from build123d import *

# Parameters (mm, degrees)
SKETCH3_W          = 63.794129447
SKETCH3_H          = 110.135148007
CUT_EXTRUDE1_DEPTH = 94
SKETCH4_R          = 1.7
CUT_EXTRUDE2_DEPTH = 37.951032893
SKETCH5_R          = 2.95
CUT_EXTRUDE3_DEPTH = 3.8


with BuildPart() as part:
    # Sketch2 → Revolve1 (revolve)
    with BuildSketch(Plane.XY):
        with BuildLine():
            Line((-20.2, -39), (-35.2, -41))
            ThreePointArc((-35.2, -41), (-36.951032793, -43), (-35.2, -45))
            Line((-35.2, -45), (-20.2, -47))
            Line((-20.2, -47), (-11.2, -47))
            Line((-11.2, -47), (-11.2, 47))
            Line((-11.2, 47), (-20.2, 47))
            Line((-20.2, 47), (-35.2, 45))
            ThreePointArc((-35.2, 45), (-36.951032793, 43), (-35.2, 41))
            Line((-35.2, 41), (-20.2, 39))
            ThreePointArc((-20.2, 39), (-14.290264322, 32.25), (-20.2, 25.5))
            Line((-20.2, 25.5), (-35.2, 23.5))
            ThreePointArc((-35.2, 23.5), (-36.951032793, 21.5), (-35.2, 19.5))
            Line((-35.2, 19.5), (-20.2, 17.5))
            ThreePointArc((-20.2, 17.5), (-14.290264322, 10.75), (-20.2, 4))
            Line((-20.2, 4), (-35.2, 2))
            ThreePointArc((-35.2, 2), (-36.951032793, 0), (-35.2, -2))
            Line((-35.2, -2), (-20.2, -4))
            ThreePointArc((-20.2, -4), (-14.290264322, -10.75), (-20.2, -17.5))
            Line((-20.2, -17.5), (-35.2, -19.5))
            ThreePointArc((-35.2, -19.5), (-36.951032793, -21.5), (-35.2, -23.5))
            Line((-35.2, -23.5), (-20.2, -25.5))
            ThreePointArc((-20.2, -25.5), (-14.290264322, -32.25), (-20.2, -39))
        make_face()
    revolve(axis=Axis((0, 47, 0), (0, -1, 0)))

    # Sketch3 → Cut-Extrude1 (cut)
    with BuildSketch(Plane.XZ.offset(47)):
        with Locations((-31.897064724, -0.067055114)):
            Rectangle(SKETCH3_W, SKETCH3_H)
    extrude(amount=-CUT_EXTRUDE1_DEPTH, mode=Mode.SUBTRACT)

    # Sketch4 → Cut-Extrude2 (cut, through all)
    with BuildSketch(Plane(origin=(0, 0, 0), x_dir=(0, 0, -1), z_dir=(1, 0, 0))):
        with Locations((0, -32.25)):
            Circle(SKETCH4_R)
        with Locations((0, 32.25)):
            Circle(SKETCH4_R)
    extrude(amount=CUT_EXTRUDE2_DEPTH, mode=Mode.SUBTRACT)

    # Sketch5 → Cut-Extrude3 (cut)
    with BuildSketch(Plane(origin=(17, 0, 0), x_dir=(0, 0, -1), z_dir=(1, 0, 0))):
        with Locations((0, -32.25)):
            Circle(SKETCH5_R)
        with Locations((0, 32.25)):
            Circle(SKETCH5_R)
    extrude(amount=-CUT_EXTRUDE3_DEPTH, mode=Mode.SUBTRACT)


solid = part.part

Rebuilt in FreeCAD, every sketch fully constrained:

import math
import FreeCAD as App
import Part
import Sketcher

V = App.Vector
Q = App.Units.Quantity


def add_polygon(sketch, points):
    """Adds a closed chain of lines whose ends are joined by coincident constraints."""
    first, n = sketch.GeometryCount, len(points)
    for a, b in zip(points, points[1:] + points[:1]):
        sketch.addGeometry(Part.LineSegment(App.Vector(*a, 0), App.Vector(*b, 0)), False)
    for i in range(n):
        sketch.addConstraint(Sketcher.Constraint("Coincident", first + i, 2, first + (i + 1) % n, 1))

doc = App.newDocument("Part")
params = doc.addObject("Spreadsheet::Sheet", "Params")
for row, (alias, value) in enumerate([
    ("sketch1_width", "9 mm"),
    ("sketch1_height", "94 mm"),
    ("revolution_angle", "360 deg"),
    ("pocket1_length", "94 mm"),
    ("sketch3_diameter", "3.4 mm"),
    ("sketch4_diameter", "5.9 mm"),
    ("pocket3_length", "3.8 mm"),
], start=1):
    params.set(f"A{row}", alias)
    params.set(f"B{row}", "=" + value)
    params.setAlias(f"B{row}", alias)

body = doc.addObject("PartDesign::Body", "Body")

# Sketch on XY plane
sketch1 = body.newObject("Sketcher::SketchObject", "Sketch")
sketch1.AttachmentSupport = (doc.getObject("XY_Plane"), [""])
sketch1.MapMode = "FlatFace"
sketch1.addGeometry(Part.LineSegment(V(-20.2, -39, 0), V(-35.2, -41, 0)), False)
sketch1.addGeometry(Part.ArcOfCircle(Part.Circle(V(-34.9, -43, 0), V(0, 0, 1), 2), math.radians(98), math.radians(262)), False)
sketch1.addGeometry(Part.LineSegment(V(-35.2, -45, 0), V(-20.2, -47, 0)), False)
sketch1.addGeometry(Part.LineSegment(V(-20.2, -47, 0), V(-11.2, -47, 0)), False)
sketch1.addGeometry(Part.LineSegment(V(-11.2, -47, 0), V(-11.2, 47, 0)), False)
sketch1.addGeometry(Part.LineSegment(V(-11.2, 47, 0), V(-20.2, 47, 0)), False)
sketch1.addGeometry(Part.LineSegment(V(-20.2, 47, 0), V(-35.2, 45, 0)), False)
sketch1.addGeometry(Part.ArcOfCircle(Part.Circle(V(-34.9, 43, 0), V(0, 0, 1), 2), math.radians(98), math.radians(262)), False)
sketch1.addGeometry(Part.LineSegment(V(-35.2, 41, 0), V(-20.2, 39, 0)), False)
sketch1.addGeometry(Part.ArcOfCircle(Part.Circle(V(-21.1, 32.2, 0), V(0, 0, 1), 6.8), math.radians(-82), math.radians(82)), False)
sketch1.addGeometry(Part.LineSegment(V(-20.2, 25.5, 0), V(-35.2, 23.5, 0)), False)
sketch1.addGeometry(Part.ArcOfCircle(Part.Circle(V(-34.9, 21.5, 0), V(0, 0, 1), 2), math.radians(98), math.radians(262)), False)
sketch1.addGeometry(Part.LineSegment(V(-35.2, 19.5, 0), V(-20.2, 17.5, 0)), False)
sketch1.addGeometry(Part.ArcOfCircle(Part.Circle(V(-21.1, 10.8, 0), V(0, 0, 1), 6.8), math.radians(-82), math.radians(82)), False)
sketch1.addGeometry(Part.LineSegment(V(-20.2, 4, 0), V(-35.2, 2, 0)), False)
sketch1.addGeometry(Part.ArcOfCircle(Part.Circle(V(-34.9, 0, 0), V(0, 0, 1), 2), math.radians(98), math.radians(262)), False)
sketch1.addGeometry(Part.LineSegment(V(-35.2, -2, 0), V(-20.2, -4, 0)), False)
sketch1.addGeometry(Part.ArcOfCircle(Part.Circle(V(-21.1, -10.8, 0), V(0, 0, 1), 6.8), math.radians(-82), math.radians(82)), False)
sketch1.addGeometry(Part.LineSegment(V(-20.2, -17.5, 0), V(-35.2, -19.5, 0)), False)
sketch1.addGeometry(Part.ArcOfCircle(Part.Circle(V(-34.9, -21.5, 0), V(0, 0, 1), 2), math.radians(98), math.radians(262)), False)
sketch1.addGeometry(Part.LineSegment(V(-35.2, -23.5, 0), V(-20.2, -25.5, 0)), False)
sketch1.addGeometry(Part.ArcOfCircle(Part.Circle(V(-21.1, -32.2, 0), V(0, 0, 1), 6.8), math.radians(-82), math.radians(82)), False)
sketch1.addConstraint(Sketcher.Constraint("Tangent", 0, 2, 1, 1))
sketch1.addConstraint(Sketcher.Constraint("Tangent", 1, 2, 2, 1))
sketch1.addConstraint(Sketcher.Constraint("Coincident", 2, 2, 3, 1))
sketch1.addConstraint(Sketcher.Constraint("Coincident", 3, 2, 4, 1))
sketch1.addConstraint(Sketcher.Constraint("Coincident", 4, 2, 5, 1))
sketch1.addConstraint(Sketcher.Constraint("Coincident", 5, 2, 6, 1))
sketch1.addConstraint(Sketcher.Constraint("Tangent", 6, 2, 7, 1))
sketch1.addConstraint(Sketcher.Constraint("Tangent", 7, 2, 8, 1))
sketch1.addConstraint(Sketcher.Constraint("Tangent", 8, 2, 9, 2))
sketch1.addConstraint(Sketcher.Constraint("Tangent", 9, 1, 10, 1))
sketch1.addConstraint(Sketcher.Constraint("Tangent", 10, 2, 11, 1))
sketch1.addConstraint(Sketcher.Constraint("Tangent", 11, 2, 12, 1))
sketch1.addConstraint(Sketcher.Constraint("Tangent", 12, 2, 13, 2))
sketch1.addConstraint(Sketcher.Constraint("Tangent", 13, 1, 14, 1))
sketch1.addConstraint(Sketcher.Constraint("Tangent", 14, 2, 15, 1))
sketch1.addConstraint(Sketcher.Constraint("Tangent", 15, 2, 16, 1))
sketch1.addConstraint(Sketcher.Constraint("Tangent", 16, 2, 17, 2))
sketch1.addConstraint(Sketcher.Constraint("Tangent", 17, 1, 18, 1))
sketch1.addConstraint(Sketcher.Constraint("Tangent", 18, 2, 19, 1))
sketch1.addConstraint(Sketcher.Constraint("Tangent", 19, 2, 20, 1))
sketch1.addConstraint(Sketcher.Constraint("Tangent", 20, 2, 21, 2))
sketch1.addConstraint(Sketcher.Constraint("Tangent", 21, 1, 0, 1))
sketch1.addConstraint(Sketcher.Constraint("Horizontal", 3))
sketch1.addConstraint(Sketcher.Constraint("Vertical", 4))
sketch1.addConstraint(Sketcher.Constraint("Horizontal", 5))
sketch1.addConstraint(Sketcher.Constraint("Equal", 1, 7))
sketch1.addConstraint(Sketcher.Constraint("Equal", 7, 11))
sketch1.addConstraint(Sketcher.Constraint("Equal", 9, 13))
sketch1.addConstraint(Sketcher.Constraint("Equal", 11, 15))
sketch1.addConstraint(Sketcher.Constraint("Equal", 13, 17))
sketch1.addConstraint(Sketcher.Constraint("Equal", 15, 19))
sketch1.addConstraint(Sketcher.Constraint("Equal", 17, 21))
sketch1.addConstraint(Sketcher.Constraint("Symmetric", 1, 3, 7, 3, -1))
sketch1.addConstraint(Sketcher.Constraint("Symmetric", 13, 3, 17, 3, -1))
sketch1.addConstraint(Sketcher.Constraint("Symmetric", 11, 3, 19, 3, -1))
sketch1.addConstraint(Sketcher.Constraint("Symmetric", 9, 3, 21, 3, -1))
sketch1.addConstraint(Sketcher.Constraint("Symmetric", 2, 2, 5, 2, -1))
sketch1.addConstraint(Sketcher.Constraint("PointOnObject", 15, 3, -1))
sketch1.addConstraint(Sketcher.Constraint("Parallel", 0, 6))
sketch1.addConstraint(Sketcher.Constraint("Parallel", 6, 10))
sketch1.addConstraint(Sketcher.Constraint("Parallel", 8, 12))
sketch1.addConstraint(Sketcher.Constraint("Parallel", 10, 14))
sketch1.addConstraint(Sketcher.Constraint("Vertical", 7, 3, 11, 3))
sketch1.addConstraint(Sketcher.Constraint("Vertical", 9, 3, 13, 3))
sketch1.addConstraint(Sketcher.Constraint("Vertical", 11, 3, 15, 3))
sketch1.addConstraint(Sketcher.Constraint("Vertical", 5, 2, 8, 2))
sketch1.addConstraint(Sketcher.Constraint("DistanceX", 3, 1, 3, 2, Q("9 mm")))
sketch1.addConstraint(Sketcher.Constraint("DistanceY", 4, 1, 4, 2, Q("94 mm")))
sketch1.addConstraint(Sketcher.Constraint("DistanceY", 1, 3, -1, 1, Q("43 mm")))
sketch1.addConstraint(Sketcher.Constraint("DistanceY", 0, 2, -1, 1, Q("41 mm")))
sketch1.addConstraint(Sketcher.Constraint("DistanceX", 1, 2, 2, 2, Q("15 mm")))
sketch1.addConstraint(Sketcher.Constraint("DistanceX", 9, 3, -1, 1, Q("21.1 mm")))
sketch1.setExpression("Constraints[46]", "Params.sketch1_width")
sketch1.setExpression("Constraints[47]", "Params.sketch1_height")
revolution = body.newObject("PartDesign::Revolution", "Revolution")
revolution.Profile = sketch1
revolution.ReferenceAxis = (sketch1, ["V_Axis"])
revolution.setExpression("Angle", "Params.revolution_angle")

# Sketch on XZ plane
sketch2 = body.newObject("Sketcher::SketchObject", "Sketch001")
sketch2.AttachmentSupport = (doc.getObject("XZ_Plane"), [""])
sketch2.MapMode = "FlatFace"
sketch2.AttachmentOffset = App.Placement(V(0, 0, 47), App.Rotation())
add_polygon(sketch2, [(-64, 55), (-64, -55), (0, -55), (0, 55)])  # lines 0-3
sketch2.addConstraint(Sketcher.Constraint("Vertical", 0))
sketch2.addConstraint(Sketcher.Constraint("Horizontal", 1))
sketch2.addConstraint(Sketcher.Constraint("Vertical", 2))
sketch2.addConstraint(Sketcher.Constraint("Horizontal", 3))
sketch2.addConstraint(Sketcher.Constraint("PointOnObject", 1, 2, -2))
sketch2.addConstraint(Sketcher.Constraint("DistanceX", 1, 1, 1, 2, Q("63.794129 mm")))
sketch2.addConstraint(Sketcher.Constraint("DistanceY", 0, 2, 0, 1, Q("110.135148 mm")))
sketch2.addConstraint(Sketcher.Constraint("DistanceY", 0, 2, -1, 1, Q("55.134629 mm")))
pocket1 = body.newObject("PartDesign::Pocket", "Pocket")
pocket1.Profile = sketch2
pocket1.setExpression("Length", "Params.pocket1_length")

# Sketch on YZ plane
sketch3 = body.newObject("Sketcher::SketchObject", "Sketch002")
sketch3.AttachmentSupport = (doc.getObject("YZ_Plane"), [""])
sketch3.MapMode = "FlatFace"
sketch3.addGeometry(Part.Circle(V(-32.2, 0, 0), V(0, 0, 1), 1.7), False)
sketch3.addGeometry(Part.Circle(V(32.2, 0, 0), V(0, 0, 1), 1.7), False)
sketch3.addConstraint(Sketcher.Constraint("Equal", 0, 1))
sketch3.addConstraint(Sketcher.Constraint("Symmetric", 0, 3, 1, 3, -1, 1))
sketch3.addConstraint(Sketcher.Constraint("PointOnObject", 0, 3, -1))
sketch3.addConstraint(Sketcher.Constraint("Diameter", 0, Q("3.4 mm")))
sketch3.addConstraint(Sketcher.Constraint("DistanceX", 0, 3, 1, 3, Q("64.5 mm")))
sketch3.setExpression("Constraints[3]", "Params.sketch3_diameter")
pocket2 = body.newObject("PartDesign::Pocket", "Pocket001")
pocket2.Profile = sketch3
pocket2.Type = "ThroughAll"
pocket2.Reversed = True

# Sketch on YZ plane
sketch4 = body.newObject("Sketcher::SketchObject", "Sketch003")
sketch4.AttachmentSupport = (doc.getObject("YZ_Plane"), [""])
sketch4.MapMode = "FlatFace"
sketch4.AttachmentOffset = App.Placement(V(0, 0, 17), App.Rotation())
sketch4.addGeometry(Part.Circle(V(-32.2, 0, 0), V(0, 0, 1), 3), False)
sketch4.addGeometry(Part.Circle(V(32.2, 0, 0), V(0, 0, 1), 3), False)
sketch4.addConstraint(Sketcher.Constraint("Equal", 0, 1))
sketch4.addConstraint(Sketcher.Constraint("Symmetric", 0, 3, 1, 3, -1, 1))
sketch4.addConstraint(Sketcher.Constraint("PointOnObject", 0, 3, -1))
sketch4.addConstraint(Sketcher.Constraint("Diameter", 0, Q("5.9 mm")))
sketch4.addConstraint(Sketcher.Constraint("DistanceX", 0, 3, 1, 3, Q("64.5 mm")))
sketch4.setExpression("Constraints[3]", "Params.sketch4_diameter")
pocket3 = body.newObject("PartDesign::Pocket", "Pocket002")
pocket3.Profile = sketch4
pocket3.setExpression("Length", "Params.pocket3_length")

doc.recompute()
